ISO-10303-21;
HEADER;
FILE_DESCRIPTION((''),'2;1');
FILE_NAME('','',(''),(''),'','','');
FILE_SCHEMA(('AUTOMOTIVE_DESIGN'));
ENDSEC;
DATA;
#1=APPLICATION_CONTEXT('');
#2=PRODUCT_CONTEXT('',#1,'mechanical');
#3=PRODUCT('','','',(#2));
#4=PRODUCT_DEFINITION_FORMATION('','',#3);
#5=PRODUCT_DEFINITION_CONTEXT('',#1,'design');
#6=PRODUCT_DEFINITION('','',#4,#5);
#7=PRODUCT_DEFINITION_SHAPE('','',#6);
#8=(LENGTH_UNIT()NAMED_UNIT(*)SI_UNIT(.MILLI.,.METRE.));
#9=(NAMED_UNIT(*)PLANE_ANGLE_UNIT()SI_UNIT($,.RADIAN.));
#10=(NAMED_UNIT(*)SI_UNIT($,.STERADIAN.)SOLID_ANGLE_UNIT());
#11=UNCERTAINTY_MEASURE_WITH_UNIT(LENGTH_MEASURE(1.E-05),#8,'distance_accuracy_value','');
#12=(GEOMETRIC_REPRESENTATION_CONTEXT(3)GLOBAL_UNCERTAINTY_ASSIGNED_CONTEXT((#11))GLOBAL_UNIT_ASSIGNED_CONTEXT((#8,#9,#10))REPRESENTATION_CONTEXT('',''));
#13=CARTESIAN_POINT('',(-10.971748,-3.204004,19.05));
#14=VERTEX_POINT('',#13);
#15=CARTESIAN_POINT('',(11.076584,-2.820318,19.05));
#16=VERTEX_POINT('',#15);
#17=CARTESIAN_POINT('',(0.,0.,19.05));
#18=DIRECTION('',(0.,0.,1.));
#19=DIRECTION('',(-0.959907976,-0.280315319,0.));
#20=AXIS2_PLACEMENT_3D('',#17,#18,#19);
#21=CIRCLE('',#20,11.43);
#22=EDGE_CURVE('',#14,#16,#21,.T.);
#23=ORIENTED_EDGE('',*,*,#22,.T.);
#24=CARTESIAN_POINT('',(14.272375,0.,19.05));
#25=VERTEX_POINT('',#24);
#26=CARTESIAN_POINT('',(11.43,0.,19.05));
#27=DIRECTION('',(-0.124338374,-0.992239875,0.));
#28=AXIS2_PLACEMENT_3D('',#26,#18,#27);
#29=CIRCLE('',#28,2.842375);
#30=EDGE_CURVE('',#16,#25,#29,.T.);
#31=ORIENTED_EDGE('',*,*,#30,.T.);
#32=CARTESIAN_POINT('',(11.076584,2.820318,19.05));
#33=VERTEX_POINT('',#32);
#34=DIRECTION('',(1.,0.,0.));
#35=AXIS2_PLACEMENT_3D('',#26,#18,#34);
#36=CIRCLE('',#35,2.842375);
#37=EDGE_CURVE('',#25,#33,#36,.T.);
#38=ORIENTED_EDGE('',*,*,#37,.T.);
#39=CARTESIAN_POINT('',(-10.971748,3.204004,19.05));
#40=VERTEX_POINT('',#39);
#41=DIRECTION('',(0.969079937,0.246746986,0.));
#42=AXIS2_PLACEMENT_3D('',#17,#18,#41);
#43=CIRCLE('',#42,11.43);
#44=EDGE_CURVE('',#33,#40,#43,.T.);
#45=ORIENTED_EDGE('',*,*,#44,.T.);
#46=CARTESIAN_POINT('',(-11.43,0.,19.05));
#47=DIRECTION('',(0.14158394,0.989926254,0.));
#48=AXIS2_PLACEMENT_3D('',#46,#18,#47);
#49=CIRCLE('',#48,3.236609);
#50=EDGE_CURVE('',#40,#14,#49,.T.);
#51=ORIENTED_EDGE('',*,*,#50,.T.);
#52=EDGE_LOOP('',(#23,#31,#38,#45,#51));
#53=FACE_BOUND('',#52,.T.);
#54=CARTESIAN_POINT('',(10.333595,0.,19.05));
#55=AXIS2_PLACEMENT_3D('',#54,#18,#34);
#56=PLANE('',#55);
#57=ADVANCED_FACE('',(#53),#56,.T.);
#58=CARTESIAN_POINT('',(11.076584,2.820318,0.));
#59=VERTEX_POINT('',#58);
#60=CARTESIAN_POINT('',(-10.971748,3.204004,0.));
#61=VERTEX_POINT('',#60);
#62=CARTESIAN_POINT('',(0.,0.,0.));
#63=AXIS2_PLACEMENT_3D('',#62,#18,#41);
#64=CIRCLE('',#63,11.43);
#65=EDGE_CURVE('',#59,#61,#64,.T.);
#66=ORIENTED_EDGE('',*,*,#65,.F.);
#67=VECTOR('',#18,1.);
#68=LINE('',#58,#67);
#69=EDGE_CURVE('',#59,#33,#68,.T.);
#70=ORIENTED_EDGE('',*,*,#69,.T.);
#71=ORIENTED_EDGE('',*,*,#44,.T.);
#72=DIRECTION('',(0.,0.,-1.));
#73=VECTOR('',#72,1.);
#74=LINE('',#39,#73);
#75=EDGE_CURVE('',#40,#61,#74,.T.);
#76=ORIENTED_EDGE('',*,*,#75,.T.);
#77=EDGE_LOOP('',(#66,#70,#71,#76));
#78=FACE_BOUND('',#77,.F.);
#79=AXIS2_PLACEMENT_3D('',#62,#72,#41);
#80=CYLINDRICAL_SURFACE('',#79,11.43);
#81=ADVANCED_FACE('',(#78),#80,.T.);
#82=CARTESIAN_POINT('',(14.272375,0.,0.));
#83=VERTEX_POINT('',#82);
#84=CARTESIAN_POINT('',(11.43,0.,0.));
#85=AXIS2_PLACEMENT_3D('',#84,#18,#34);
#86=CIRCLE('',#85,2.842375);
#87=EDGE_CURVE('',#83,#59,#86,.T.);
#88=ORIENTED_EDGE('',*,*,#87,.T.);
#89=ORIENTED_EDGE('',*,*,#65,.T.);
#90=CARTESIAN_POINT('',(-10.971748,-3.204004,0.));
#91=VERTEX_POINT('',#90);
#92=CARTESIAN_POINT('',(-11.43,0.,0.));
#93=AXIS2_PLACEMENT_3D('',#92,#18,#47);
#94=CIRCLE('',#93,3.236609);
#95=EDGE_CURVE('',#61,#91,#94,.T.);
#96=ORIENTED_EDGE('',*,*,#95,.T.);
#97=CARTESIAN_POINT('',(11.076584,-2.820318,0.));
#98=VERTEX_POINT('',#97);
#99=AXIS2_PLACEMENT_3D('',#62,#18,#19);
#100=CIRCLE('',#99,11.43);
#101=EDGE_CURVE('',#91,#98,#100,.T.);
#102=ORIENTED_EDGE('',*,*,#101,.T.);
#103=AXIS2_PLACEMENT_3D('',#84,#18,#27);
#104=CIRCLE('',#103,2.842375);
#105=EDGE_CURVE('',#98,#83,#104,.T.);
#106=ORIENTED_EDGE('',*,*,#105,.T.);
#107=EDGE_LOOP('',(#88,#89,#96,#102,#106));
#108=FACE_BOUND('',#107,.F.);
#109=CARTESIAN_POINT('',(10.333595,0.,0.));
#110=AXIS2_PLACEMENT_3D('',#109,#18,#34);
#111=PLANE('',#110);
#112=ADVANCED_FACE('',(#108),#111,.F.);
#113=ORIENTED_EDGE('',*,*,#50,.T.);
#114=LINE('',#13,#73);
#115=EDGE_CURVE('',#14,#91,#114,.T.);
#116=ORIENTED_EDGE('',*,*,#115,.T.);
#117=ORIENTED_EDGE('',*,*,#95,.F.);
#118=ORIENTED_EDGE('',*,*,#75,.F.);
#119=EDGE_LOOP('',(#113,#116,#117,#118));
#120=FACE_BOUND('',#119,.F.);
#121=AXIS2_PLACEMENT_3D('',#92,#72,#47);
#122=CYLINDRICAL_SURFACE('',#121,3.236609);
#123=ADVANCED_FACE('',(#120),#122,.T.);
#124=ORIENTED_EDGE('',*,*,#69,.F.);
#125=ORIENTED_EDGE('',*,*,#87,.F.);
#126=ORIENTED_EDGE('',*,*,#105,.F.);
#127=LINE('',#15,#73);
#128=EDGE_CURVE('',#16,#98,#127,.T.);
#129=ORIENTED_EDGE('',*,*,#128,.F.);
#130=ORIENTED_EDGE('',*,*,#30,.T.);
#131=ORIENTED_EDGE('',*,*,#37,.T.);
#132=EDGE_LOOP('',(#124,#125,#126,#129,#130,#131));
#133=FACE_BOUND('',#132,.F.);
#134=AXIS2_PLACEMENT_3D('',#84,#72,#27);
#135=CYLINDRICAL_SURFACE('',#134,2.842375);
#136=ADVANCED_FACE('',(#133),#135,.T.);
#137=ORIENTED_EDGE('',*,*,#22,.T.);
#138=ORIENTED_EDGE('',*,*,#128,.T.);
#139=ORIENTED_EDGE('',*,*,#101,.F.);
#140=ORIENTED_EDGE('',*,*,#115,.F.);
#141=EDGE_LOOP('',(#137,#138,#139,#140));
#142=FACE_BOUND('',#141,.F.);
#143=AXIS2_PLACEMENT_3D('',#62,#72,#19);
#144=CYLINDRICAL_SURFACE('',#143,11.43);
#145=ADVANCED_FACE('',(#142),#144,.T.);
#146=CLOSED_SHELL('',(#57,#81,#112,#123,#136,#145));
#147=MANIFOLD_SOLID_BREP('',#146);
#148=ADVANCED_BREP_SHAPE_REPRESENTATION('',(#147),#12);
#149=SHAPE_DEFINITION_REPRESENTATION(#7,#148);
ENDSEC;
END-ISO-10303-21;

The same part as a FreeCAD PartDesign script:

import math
import FreeCAD as App
import Part
import Sketcher
from FreeCAD import Vector
Q = App.Units.Quantity

doc = App.newDocument("Part")
params = doc.addObject("Spreadsheet::Sheet", "Params")
for row, (alias, value) in enumerate([
    ("sketch1_radius", "0.45 in"),
    ("pad1_length", "0.5 in"),
    ("sketch2_radius", "0.45 in"),
    ("pad2_length", "0.75 in"),
], start=1):
    params.set(f"A{row}", alias)
    params.set(f"B{row}", "=" + value)
    params.setAlias(f"B{row}", alias)

body = doc.addObject("PartDesign::Body", "Body")

sketch1 = body.newObject("Sketcher::SketchObject", "Sketch")
sketch1.AttachmentSupport = (doc.getObject("XY_Plane"), [""])
sketch1.MapMode = "FlatFace"
sketch1.addGeometry(Part.ArcOfCircle(Part.Circle(Vector(11.43, 0, 0), Vector(0, 0, 1), 2.842375), math.radians(-97.142549), math.radians(0)), False)
sketch1.addGeometry(Part.ArcOfCircle(Part.Circle(Vector(11.43, 0, 0), Vector(0, 0, 1), 2.842375), math.radians(0), math.radians(97.142549)), False)
sketch1.addGeometry(Part.ArcOfCircle(Part.Circle(Vector(0, 0, 0), Vector(0, 0, 1), 11.43), math.radians(14.285099), math.radians(163.720975)), False)
sketch1.addGeometry(Part.ArcOfCircle(Part.Circle(Vector(-11.43, 0, 0), Vector(0, 0, 1), 3.236609), math.radians(81.860488), math.radians(278.139512)), False)
sketch1.addGeometry(Part.ArcOfCircle(Part.Circle(Vector(0, 0, 0), Vector(0, 0, 1), 11.43), math.radians(-163.720975), math.radians(-14.285099)), False)
sketch1.addConstraint(Sketcher.Constraint("Tangent", 0, 2, 1, 1))
sketch1.addConstraint(Sketcher.Constraint("Coincident", 1, 2, 2, 1))
sketch1.addConstraint(Sketcher.Constraint("Coincident", 2, 2, 3, 1))
sketch1.addConstraint(Sketcher.Constraint("Coincident", 3, 2, 4, 1))
sketch1.addConstraint(Sketcher.Constraint("Coincident", 4, 2, 0, 1))
sketch1.addConstraint(Sketcher.Constraint("Coincident", 2, 3, -1, 1))
sketch1.addConstraint(Sketcher.Constraint("Coincident", 4, 3, -1, 1))
sketch1.addConstraint(Sketcher.Constraint("Equal", 0, 1))
sketch1.addConstraint(Sketcher.Constraint("Equal", 2, 4))
sketch1.addConstraint(Sketcher.Constraint("Symmetric", 0, 3, 3, 3, -1, 1))
sketch1.addConstraint(Sketcher.Constraint("PointOnObject", 0, 3, -1))
sketch1.addConstraint(Sketcher.Constraint("PointOnObject", 0, 2, -1))
sketch1.addConstraint(Sketcher.Constraint("Radius", 2, Q("0.45 in")))
sketch1.addConstraint(Sketcher.Constraint("DistanceX", 3, 3, 0, 3, Q("0.9 in")))
sketch1.addConstraint(Sketcher.Constraint("Radius", 3, 3.236609))
sketch1.addConstraint(Sketcher.Constraint("Radius", 0, 2.842375))
sketch1.setExpression("Constraints[12]", "Params.sketch1_radius")
pad1 = body.newObject("PartDesign::Pad", "Pad")
pad1.Profile = sketch1
pad1.setExpression("Length", "Params.pad1_length")

sketch2 = body.newObject("Sketcher::SketchObject", "Sketch001")
sketch2.AttachmentSupport = (doc.getObject("XY_Plane"), [""])
sketch2.MapMode = "FlatFace"
sketch2.addGeometry(Part.ArcOfCircle(Part.Circle(Vector(11.43, 0, 0), Vector(0, 0, 1), 2.842375), math.radians(-97.142549), math.radians(0)), False)
sketch2.addGeometry(Part.ArcOfCircle(Part.Circle(Vector(11.43, 0, 0), Vector(0, 0, 1), 2.842375), math.radians(0), math.radians(97.142549)), False)
sketch2.addGeometry(Part.ArcOfCircle(Part.Circle(Vector(0, 0, 0), Vector(0, 0, 1), 11.43), math.radians(14.285099), math.radians(163.720975)), False)
sketch2.addGeometry(Part.ArcOfCircle(Part.Circle(Vector(-11.43, 0, 0), Vector(0, 0, 1), 3.236609), math.radians(81.860488), math.radians(278.139512)), False)
sketch2.addGeometry(Part.ArcOfCircle(Part.Circle(Vector(0, 0, 0), Vector(0, 0, 1), 11.43), math.radians(-163.720975), math.radians(-14.285099)), False)
sketch2.addConstraint(Sketcher.Constraint("Tangent", 0, 2, 1, 1))
sketch2.addConstraint(Sketcher.Constraint("Coincident", 1, 2, 2, 1))
sketch2.addConstraint(Sketcher.Constraint("Coincident", 2, 2, 3, 1))
sketch2.addConstraint(Sketcher.Constraint("Coincident", 3, 2, 4, 1))
sketch2.addConstraint(Sketcher.Constraint("Coincident", 4, 2, 0, 1))
sketch2.addConstraint(Sketcher.Constraint("Coincident", 2, 3, -1, 1))
sketch2.addConstraint(Sketcher.Constraint("Coincident", 4, 3, -1, 1))
sketch2.addConstraint(Sketcher.Constraint("Equal", 0, 1))
sketch2.addConstraint(Sketcher.Constraint("Equal", 2, 4))
sketch2.addConstraint(Sketcher.Constraint("Symmetric", 0, 3, 3, 3, -1, 1))
sketch2.addConstraint(Sketcher.Constraint("PointOnObject", 0, 3, -1))
sketch2.addConstraint(Sketcher.Constraint("PointOnObject", 0, 2, -1))
sketch2.addConstraint(Sketcher.Constraint("Radius", 2, Q("0.45 in")))
sketch2.addConstraint(Sketcher.Constraint("DistanceX", 3, 3, 0, 3, Q("0.9 in")))
sketch2.addConstraint(Sketcher.Constraint("Radius", 3, 3.236609))
sketch2.addConstraint(Sketcher.Constraint("Radius", 0, 2.842375))
sketch2.setExpression("Constraints[12]", "Params.sketch2_radius")
pad2 = body.newObject("PartDesign::Pad", "Pad001")
pad2.Profile = sketch2
pad2.setExpression("Length", "Params.pad2_length")

doc.recompute()
